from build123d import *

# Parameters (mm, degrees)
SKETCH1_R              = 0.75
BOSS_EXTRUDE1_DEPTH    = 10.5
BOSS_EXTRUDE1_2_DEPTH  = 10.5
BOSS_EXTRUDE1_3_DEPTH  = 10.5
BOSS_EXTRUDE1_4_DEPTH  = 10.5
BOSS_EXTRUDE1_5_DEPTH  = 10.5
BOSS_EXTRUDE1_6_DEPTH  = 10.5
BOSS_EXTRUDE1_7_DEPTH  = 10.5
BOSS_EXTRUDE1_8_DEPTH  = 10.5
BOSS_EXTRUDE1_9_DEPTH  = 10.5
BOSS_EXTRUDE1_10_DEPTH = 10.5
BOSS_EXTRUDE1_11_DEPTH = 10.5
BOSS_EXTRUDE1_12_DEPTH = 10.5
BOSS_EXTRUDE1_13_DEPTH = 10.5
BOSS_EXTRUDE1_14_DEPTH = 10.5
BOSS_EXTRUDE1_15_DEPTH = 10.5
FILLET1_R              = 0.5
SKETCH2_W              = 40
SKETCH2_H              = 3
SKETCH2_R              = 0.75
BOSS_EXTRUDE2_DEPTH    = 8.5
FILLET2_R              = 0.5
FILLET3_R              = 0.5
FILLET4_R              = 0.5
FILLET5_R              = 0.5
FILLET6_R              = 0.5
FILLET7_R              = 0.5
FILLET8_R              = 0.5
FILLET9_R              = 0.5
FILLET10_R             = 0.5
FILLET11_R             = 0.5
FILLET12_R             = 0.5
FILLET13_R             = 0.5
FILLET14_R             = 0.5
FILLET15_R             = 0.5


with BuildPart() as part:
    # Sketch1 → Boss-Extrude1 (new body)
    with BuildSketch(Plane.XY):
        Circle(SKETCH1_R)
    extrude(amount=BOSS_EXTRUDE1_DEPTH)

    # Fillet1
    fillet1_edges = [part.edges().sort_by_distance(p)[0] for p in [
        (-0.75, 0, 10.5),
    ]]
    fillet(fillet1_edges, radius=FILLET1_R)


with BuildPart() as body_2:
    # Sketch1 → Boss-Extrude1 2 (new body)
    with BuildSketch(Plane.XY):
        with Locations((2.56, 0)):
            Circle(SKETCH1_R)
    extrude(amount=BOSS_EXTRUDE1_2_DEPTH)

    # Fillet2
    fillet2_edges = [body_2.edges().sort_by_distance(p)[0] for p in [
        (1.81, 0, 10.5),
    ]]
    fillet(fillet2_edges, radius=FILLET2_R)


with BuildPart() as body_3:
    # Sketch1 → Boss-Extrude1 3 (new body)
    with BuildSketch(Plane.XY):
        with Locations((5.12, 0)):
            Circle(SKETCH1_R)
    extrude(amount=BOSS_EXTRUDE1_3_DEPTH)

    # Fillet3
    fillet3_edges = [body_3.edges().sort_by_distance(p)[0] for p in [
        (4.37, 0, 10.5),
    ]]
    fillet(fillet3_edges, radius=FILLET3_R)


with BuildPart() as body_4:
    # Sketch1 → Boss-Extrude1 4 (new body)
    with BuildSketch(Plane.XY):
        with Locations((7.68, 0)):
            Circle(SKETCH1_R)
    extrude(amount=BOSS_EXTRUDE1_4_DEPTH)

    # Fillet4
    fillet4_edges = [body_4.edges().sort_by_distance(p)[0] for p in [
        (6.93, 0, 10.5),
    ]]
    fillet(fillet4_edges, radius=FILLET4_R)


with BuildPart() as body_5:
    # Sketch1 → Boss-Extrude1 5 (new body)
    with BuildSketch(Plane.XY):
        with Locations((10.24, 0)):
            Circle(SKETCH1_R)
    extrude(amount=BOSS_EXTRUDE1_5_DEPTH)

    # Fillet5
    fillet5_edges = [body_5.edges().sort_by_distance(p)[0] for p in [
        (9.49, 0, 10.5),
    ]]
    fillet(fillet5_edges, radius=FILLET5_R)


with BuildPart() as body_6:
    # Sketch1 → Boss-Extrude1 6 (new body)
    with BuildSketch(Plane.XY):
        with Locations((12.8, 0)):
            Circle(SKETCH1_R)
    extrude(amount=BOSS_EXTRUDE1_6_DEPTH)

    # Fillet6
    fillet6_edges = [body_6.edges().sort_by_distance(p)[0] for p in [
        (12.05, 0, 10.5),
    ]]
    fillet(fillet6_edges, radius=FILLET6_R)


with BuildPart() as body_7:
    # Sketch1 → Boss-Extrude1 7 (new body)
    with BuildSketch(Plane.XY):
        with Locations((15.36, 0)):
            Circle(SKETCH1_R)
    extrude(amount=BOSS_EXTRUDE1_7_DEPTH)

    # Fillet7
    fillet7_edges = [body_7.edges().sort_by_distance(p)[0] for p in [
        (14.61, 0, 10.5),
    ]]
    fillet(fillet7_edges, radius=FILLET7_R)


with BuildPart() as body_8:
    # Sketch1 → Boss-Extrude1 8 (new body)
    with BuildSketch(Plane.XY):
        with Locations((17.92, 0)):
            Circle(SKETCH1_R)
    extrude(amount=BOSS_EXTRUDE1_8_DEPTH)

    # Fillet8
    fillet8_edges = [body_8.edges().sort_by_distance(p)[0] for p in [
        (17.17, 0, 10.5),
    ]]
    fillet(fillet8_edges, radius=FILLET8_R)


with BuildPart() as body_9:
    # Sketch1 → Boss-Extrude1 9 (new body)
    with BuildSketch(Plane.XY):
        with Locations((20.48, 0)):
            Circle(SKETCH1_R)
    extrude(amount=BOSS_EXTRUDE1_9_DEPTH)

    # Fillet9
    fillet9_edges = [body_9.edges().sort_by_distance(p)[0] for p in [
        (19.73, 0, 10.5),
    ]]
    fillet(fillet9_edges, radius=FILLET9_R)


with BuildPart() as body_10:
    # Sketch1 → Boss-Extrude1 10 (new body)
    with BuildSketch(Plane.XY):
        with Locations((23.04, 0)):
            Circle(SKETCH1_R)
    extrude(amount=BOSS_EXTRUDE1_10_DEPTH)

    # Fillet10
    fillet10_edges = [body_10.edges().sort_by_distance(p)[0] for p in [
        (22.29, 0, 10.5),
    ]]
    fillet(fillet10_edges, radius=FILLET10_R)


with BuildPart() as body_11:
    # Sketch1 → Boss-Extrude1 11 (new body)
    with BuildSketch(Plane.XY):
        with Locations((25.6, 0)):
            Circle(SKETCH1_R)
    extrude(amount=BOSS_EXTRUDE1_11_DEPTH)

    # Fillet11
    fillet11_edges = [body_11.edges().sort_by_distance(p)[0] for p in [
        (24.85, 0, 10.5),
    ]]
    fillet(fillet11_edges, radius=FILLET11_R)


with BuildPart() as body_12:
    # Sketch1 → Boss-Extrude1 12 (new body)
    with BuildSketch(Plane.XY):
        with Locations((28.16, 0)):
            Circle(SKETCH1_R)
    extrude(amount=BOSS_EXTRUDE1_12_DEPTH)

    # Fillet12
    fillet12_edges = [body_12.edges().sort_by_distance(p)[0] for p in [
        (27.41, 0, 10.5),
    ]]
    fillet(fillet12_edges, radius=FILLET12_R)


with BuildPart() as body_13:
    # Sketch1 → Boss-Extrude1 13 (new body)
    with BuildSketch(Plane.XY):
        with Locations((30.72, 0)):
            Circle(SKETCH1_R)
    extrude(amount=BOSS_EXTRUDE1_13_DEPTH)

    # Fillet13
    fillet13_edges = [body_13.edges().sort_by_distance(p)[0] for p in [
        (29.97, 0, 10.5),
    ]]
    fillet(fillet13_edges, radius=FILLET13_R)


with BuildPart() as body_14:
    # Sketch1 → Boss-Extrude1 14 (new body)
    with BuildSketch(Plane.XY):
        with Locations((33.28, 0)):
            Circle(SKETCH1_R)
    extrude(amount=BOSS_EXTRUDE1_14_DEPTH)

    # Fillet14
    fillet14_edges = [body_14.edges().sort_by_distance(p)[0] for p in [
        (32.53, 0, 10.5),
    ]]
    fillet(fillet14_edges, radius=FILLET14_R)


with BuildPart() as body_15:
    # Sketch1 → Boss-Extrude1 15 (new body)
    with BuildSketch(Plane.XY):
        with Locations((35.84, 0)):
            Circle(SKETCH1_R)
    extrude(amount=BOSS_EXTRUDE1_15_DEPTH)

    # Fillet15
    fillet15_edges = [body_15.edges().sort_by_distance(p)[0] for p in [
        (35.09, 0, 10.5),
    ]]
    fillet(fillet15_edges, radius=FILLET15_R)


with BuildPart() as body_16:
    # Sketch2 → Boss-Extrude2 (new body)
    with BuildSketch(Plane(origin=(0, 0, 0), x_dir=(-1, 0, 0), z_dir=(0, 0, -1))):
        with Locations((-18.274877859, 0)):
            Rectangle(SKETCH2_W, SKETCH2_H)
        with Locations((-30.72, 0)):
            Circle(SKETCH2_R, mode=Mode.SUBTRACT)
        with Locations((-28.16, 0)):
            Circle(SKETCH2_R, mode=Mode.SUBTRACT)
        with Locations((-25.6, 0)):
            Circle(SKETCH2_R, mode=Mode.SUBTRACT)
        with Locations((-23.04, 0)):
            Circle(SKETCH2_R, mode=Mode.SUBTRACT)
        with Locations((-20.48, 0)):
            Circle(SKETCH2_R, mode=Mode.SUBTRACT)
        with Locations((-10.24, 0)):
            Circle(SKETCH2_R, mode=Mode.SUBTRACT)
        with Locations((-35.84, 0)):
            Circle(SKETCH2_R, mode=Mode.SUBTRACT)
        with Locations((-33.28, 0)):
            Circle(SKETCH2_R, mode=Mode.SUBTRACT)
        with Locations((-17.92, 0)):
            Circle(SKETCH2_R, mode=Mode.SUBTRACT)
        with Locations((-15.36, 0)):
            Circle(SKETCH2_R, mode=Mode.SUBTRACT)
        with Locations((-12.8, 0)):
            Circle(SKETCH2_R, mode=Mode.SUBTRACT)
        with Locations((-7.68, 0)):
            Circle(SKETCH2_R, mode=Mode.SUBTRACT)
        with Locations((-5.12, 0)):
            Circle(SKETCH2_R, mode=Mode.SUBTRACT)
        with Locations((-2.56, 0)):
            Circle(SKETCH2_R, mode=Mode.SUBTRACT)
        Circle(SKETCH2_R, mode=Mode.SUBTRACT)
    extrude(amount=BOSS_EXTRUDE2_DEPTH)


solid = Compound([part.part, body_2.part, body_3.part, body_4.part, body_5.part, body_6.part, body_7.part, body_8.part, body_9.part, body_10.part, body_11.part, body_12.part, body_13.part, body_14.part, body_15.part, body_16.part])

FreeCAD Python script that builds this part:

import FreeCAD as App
import Part
import Sketcher
from FreeCAD import Vector


def edges_at(feature, points):
    """Names of the edges that pass closest to the given points."""
    edges = feature.Shape.Edges
    near = lambda p: min(range(len(edges)), key=lambda i: edges[i].distToShape(Part.Vertex(*p))[0])
    return sorted({f"Edge{near(p) + 1}" for p in points})


def add_polygon(sketch, points):
    """Adds a closed chain of lines whose ends are joined by coincident constraints."""
    first, n = sketch.GeometryCount, len(points)
    for a, b in zip(points, points[1:] + points[:1]):
        sketch.addGeometry(Part.LineSegment(App.Vector(*a, 0), App.Vector(*b, 0)), False)
    for i in range(n):
        sketch.addConstraint(Sketcher.Constraint("Coincident", first + i, 2, first + (i + 1) % n, 1))

doc = App.newDocument("Part")
body = doc.addObject("PartDesign::Body", "Body")

# Sketch on XY plane
sketch1 = body.newObject("Sketcher::SketchObject", "Sketch")
sketch1.AttachmentSupport = (doc.getObject("XY_Plane"), [""])
sketch1.MapMode = "FlatFace"
sketch1.addGeometry(Part.Circle(Vector(0, 0, 0), Vector(0, 0, 1), 0.8), False)
sketch1.addConstraint([
    Sketcher.Constraint("Coincident", 0, 3, -1, 1),
    Sketcher.Constraint("Diameter", 0, 1.5),
])
pad1 = body.newObject("PartDesign::Pad", "Pad")
pad1.Profile = sketch1
pad1.Length = 10.5
doc.recompute()

fillet = body.newObject("PartDesign::Fillet", "Fillet")
fillet.Base = (pad1, edges_at(pad1, [(-0.75, 0, 10.5)]))
fillet.Radius = 0.5
body2 = doc.addObject("PartDesign::Body", "Body001")

# Sketch on XY plane
sketch2 = body2.newObject("Sketcher::SketchObject", "Sketch001")
sketch2.AttachmentSupport = (doc.getObject("XY_Plane001"), [""])
sketch2.MapMode = "FlatFace"
sketch2.addGeometry(Part.Circle(Vector(2.6, 0, 0), Vector(0, 0, 1), 0.8), False)
sketch2.addConstraint([
    Sketcher.Constraint("PointOnObject", 0, 3, -1),
    Sketcher.Constraint("Diameter", 0, 1.5),
    Sketcher.Constraint("DistanceX", -1, 1, 0, 3, 2.56),
])
pad2 = body2.newObject("PartDesign::Pad", "Pad001")
pad2.Profile = sketch2
pad2.Length = 10.5
doc.recompute()

fillet2 = body2.newObject("PartDesign::Fillet", "Fillet001")
fillet2.Base = (pad2, edges_at(pad2, [(1.81, 0, 10.5)]))
fillet2.Radius = 0.5
body3 = doc.addObject("PartDesign::Body", "Body002")

# Sketch on XY plane
sketch3 = body3.newObject("Sketcher::SketchObject", "Sketch002")
sketch3.AttachmentSupport = (doc.getObject("XY_Plane002"), [""])
sketch3.MapMode = "FlatFace"
sketch3.addGeometry(Part.Circle(Vector(5.1, 0, 0), Vector(0, 0, 1), 0.8), False)
sketch3.addConstraint([
    Sketcher.Constraint("PointOnObject", 0, 3, -1),
    Sketcher.Constraint("Diameter", 0, 1.5),
    Sketcher.Constraint("DistanceX", -1, 1, 0, 3, 5.12),
])
pad3 = body3.newObject("PartDesign::Pad", "Pad002")
pad3.Profile = sketch3
pad3.Length = 10.5
doc.recompute()

fillet3 = body3.newObject("PartDesign::Fillet", "Fillet002")
fillet3.Base = (pad3, edges_at(pad3, [(4.37, 0, 10.5)]))
fillet3.Radius = 0.5
body4 = doc.addObject("PartDesign::Body", "Body003")

# Sketch on XY plane
sketch4 = body4.newObject("Sketcher::SketchObject", "Sketch003")
sketch4.AttachmentSupport = (doc.getObject("XY_Plane003"), [""])
sketch4.MapMode = "FlatFace"
sketch4.addGeometry(Part.Circle(Vector(7.7, 0, 0), Vector(0, 0, 1), 0.8), False)
sketch4.addConstraint([
    Sketcher.Constraint("PointOnObject", 0, 3, -1),
    Sketcher.Constraint("Diameter", 0, 1.5),
    Sketcher.Constraint("DistanceX", -1, 1, 0, 3, 7.68),
])
pad4 = body4.newObject("PartDesign::Pad", "Pad003")
pad4.Profile = sketch4
pad4.Length = 10.5
doc.recompute()

fillet4 = body4.newObject("PartDesign::Fillet", "Fillet003")
fillet4.Base = (pad4, edges_at(pad4, [(6.93, 0, 10.5)]))
fillet4.Radius = 0.5
body5 = doc.addObject("PartDesign::Body", "Body004")

# Sketch on XY plane
sketch5 = body5.newObject("Sketcher::SketchObject", "Sketch004")
sketch5.AttachmentSupport = (doc.getObject("XY_Plane004"), [""])
sketch5.MapMode = "FlatFace"
sketch5.addGeometry(Part.Circle(Vector(10.2, 0, 0), Vector(0, 0, 1), 0.8), False)
sketch5.addConstraint([
    Sketcher.Constraint("PointOnObject", 0, 3, -1),
    Sketcher.Constraint("Diameter", 0, 1.5),
    Sketcher.Constraint("DistanceX", -1, 1, 0, 3, 10.24),
])
pad5 = body5.newObject("PartDesign::Pad", "Pad004")
pad5.Profile = sketch5
pad5.Length = 10.5
doc.recompute()

fillet5 = body5.newObject("PartDesign::Fillet", "Fillet004")
fillet5.Base = (pad5, edges_at(pad5, [(9.49, 0, 10.5)]))
fillet5.Radius = 0.5
body6 = doc.addObject("PartDesign::Body", "Body005")

# Sketch on XY plane
sketch6 = body6.newObject("Sketcher::SketchObject", "Sketch005")
sketch6.AttachmentSupport = (doc.getObject("XY_Plane005"), [""])
sketch6.MapMode = "FlatFace"
sketch6.addGeometry(Part.Circle(Vector(12.8, 0, 0), Vector(0, 0, 1), 0.8), False)
sketch6.addConstraint([
    Sketcher.Constraint("PointOnObject", 0, 3, -1),
    Sketcher.Constraint("Diameter", 0, 1.5),
    Sketcher.Constraint("DistanceX", -1, 1, 0, 3, 12.8),
])
pad6 = body6.newObject("PartDesign::Pad", "Pad005")
pad6.Profile = sketch6
pad6.Length = 10.5
doc.recompute()

fillet6 = body6.newObject("PartDesign::Fillet", "Fillet005")
fillet6.Base = (pad6, edges_at(pad6, [(12.05, 0, 10.5)]))
fillet6.Radius = 0.5
body7 = doc.addObject("PartDesign::Body", "Body006")

# Sketch on XY plane
sketch7 = body7.newObject("Sketcher::SketchObject", "Sketch006")
sketch7.AttachmentSupport = (doc.getObject("XY_Plane006"), [""])
sketch7.MapMode = "FlatFace"
sketch7.addGeometry(Part.Circle(Vector(15.4, 0, 0), Vector(0, 0, 1), 0.8), False)
sketch7.addConstraint([
    Sketcher.Constraint("PointOnObject", 0, 3, -1),
    Sketcher.Constraint("Diameter", 0, 1.5),
    Sketcher.Constraint("DistanceX", -1, 1, 0, 3, 15.36),
])
pad7 = body7.newObject("PartDesign::Pad", "Pad006")
pad7.Profile = sketch7
pad7.Length = 10.5
doc.recompute()

fillet7 = body7.newObject("PartDesign::Fillet", "Fillet006")
fillet7.Base = (pad7, edges_at(pad7, [(14.61, 0, 10.5)]))
fillet7.Radius = 0.5
body8 = doc.addObject("PartDesign::Body", "Body007")

# Sketch on XY plane
sketch8 = body8.newObject("Sketcher::SketchObject", "Sketch007")
sketch8.AttachmentSupport = (doc.getObject("XY_Plane007"), [""])
sketch8.MapMode = "FlatFace"
sketch8.addGeometry(Part.Circle(Vector(17.9, 0, 0), Vector(0, 0, 1), 0.8), False)
sketch8.addConstraint([
    Sketcher.Constraint("PointOnObject", 0, 3, -1),
    Sketcher.Constraint("Diameter", 0, 1.5),
    Sketcher.Constraint("DistanceX", -1, 1, 0, 3, 17.92),
])
pad8 = body8.newObject("PartDesign::Pad", "Pad007")
pad8.Profile = sketch8
pad8.Length = 10.5
doc.recompute()

fillet8 = body8.newObject("PartDesign::Fillet", "Fillet007")
fillet8.Base = (pad8, edges_at(pad8, [(17.17, 0, 10.5)]))
fillet8.Radius = 0.5
body9 = doc.addObject("PartDesign::Body", "Body008")

# Sketch on XY plane
sketch9 = body9.newObject("Sketcher::SketchObject", "Sketch008")
sketch9.AttachmentSupport = (doc.getObject("XY_Plane008"), [""])
sketch9.MapMode = "FlatFace"
sketch9.addGeometry(Part.Circle(Vector(20.5, 0, 0), Vector(0, 0, 1), 0.8), False)
sketch9.addConstraint([
    Sketcher.Constraint("PointOnObject", 0, 3, -1),
    Sketcher.Constraint("Diameter", 0, 1.5),
    Sketcher.Constraint("DistanceX", -1, 1, 0, 3, 20.48),
])
pad9 = body9.newObject("PartDesign::Pad", "Pad008")
pad9.Profile = sketch9
pad9.Length = 10.5
doc.recompute()

fillet9 = body9.newObject("PartDesign::Fillet", "Fillet008")
fillet9.Base = (pad9, edges_at(pad9, [(19.73, 0, 10.5)]))
fillet9.Radius = 0.5
body10 = doc.addObject("PartDesign::Body", "Body009")

# Sketch on XY plane
sketch10 = body10.newObject("Sketcher::SketchObject", "Sketch009")
sketch10.AttachmentSupport = (doc.getObject("XY_Plane009"), [""])
sketch10.MapMode = "FlatFace"
sketch10.addGeometry(Part.Circle(Vector(23, 0, 0), Vector(0, 0, 1), 0.8), False)
sketch10.addConstraint([
    Sketcher.Constraint("PointOnObject", 0, 3, -1),
    Sketcher.Constraint("Diameter", 0, 1.5),
    Sketcher.Constraint("DistanceX", -1, 1, 0, 3, 23.04),
])
pad10 = body10.newObject("PartDesign::Pad", "Pad009")
pad10.Profile = sketch10
pad10.Length = 10.5
doc.recompute()

fillet10 = body10.newObject("PartDesign::Fillet", "Fillet009")
fillet10.Base = (pad10, edges_at(pad10, [(22.29, 0, 10.5)]))
fillet10.Radius = 0.5
body11 = doc.addObject("PartDesign::Body", "Body010")

# Sketch on XY plane
sketch11 = body11.newObject("Sketcher::SketchObject", "Sketch010")
sketch11.AttachmentSupport = (doc.getObject("XY_Plane010"), [""])
sketch11.MapMode = "FlatFace"
sketch11.addGeometry(Part.Circle(Vector(25.6, 0, 0), Vector(0, 0, 1), 0.8), False)
sketch11.addConstraint([
    Sketcher.Constraint("PointOnObject", 0, 3, -1),
    Sketcher.Constraint("Diameter", 0, 1.5),
    Sketcher.Constraint("DistanceX", -1, 1, 0, 3, 25.6),
])
pad11 = body11.newObject("PartDesign::Pad", "Pad010")
pad11.Profile = sketch11
pad11.Length = 10.5
doc.recompute()

fillet11 = body11.newObject("PartDesign::Fillet", "Fillet010")
fillet11.Base = (pad11, edges_at(pad11, [(24.85, 0, 10.5)]))
fillet11.Radius = 0.5
body12 = doc.addObject("PartDesign::Body", "Body011")

# Sketch on XY plane
sketch12 = body12.newObject("Sketcher::SketchObject", "Sketch011")
sketch12.AttachmentSupport = (doc.getObject("XY_Plane011"), [""])
sketch12.MapMode = "FlatFace"
sketch12.addGeometry(Part.Circle(Vector(28.2, 0, 0), Vector(0, 0, 1), 0.8), False)
sketch12.addConstraint([
    Sketcher.Constraint("PointOnObject", 0, 3, -1),
    Sketcher.Constraint("Diameter", 0, 1.5),
    Sketcher.Constraint("DistanceX", -1, 1, 0, 3, 28.16),
])
pad12 = body12.newObject("PartDesign::Pad", "Pad011")
pad12.Profile = sketch12
pad12.Length = 10.5
doc.recompute()

fillet12 = body12.newObject("PartDesign::Fillet", "Fillet011")
fillet12.Base = (pad12, edges_at(pad12, [(27.41, 0, 10.5)]))
fillet12.Radius = 0.5
body13 = doc.addObject("PartDesign::Body", "Body012")

# Sketch on XY plane
sketch13 = body13.newObject("Sketcher::SketchObject", "Sketch012")
sketch13.AttachmentSupport = (doc.getObject("XY_Plane012"), [""])
sketch13.MapMode = "FlatFace"
sketch13.addGeometry(Part.Circle(Vector(30.7, 0, 0), Vector(0, 0, 1), 0.8), False)
sketch13.addConstraint([
    Sketcher.Constraint("PointOnObject", 0, 3, -1),
    Sketcher.Constraint("Diameter", 0, 1.5),
    Sketcher.Constraint("DistanceX", -1, 1, 0, 3, 30.72),
])
pad13 = body13.newObject("PartDesign::Pad", "Pad012")
pad13.Profile = sketch13
pad13.Length = 10.5
doc.recompute()

fillet13 = body13.newObject("PartDesign::Fillet", "Fillet012")
fillet13.Base = (pad13, edges_at(pad13, [(29.97, 0, 10.5)]))
fillet13.Radius = 0.5
body14 = doc.addObject("PartDesign::Body", "Body013")

# Sketch on XY plane
sketch14 = body14.newObject("Sketcher::SketchObject", "Sketch013")
sketch14.AttachmentSupport = (doc.getObject("XY_Plane013"), [""])
sketch14.MapMode = "FlatFace"
sketch14.addGeometry(Part.Circle(Vector(33.3, 0, 0), Vector(0, 0, 1), 0.8), False)
sketch14.addConstraint([
    Sketcher.Constraint("PointOnObject", 0, 3, -1),
    Sketcher.Constraint("Diameter", 0, 1.5),
    Sketcher.Constraint("DistanceX", -1, 1, 0, 3, 33.28),
])
pad14 = body14.newObject("PartDesign::Pad", "Pad013")
pad14.Profile = sketch14
pad14.Length = 10.5
doc.recompute()

fillet14 = body14.newObject("PartDesign::Fillet", "Fillet013")
fillet14.Base = (pad14, edges_at(pad14, [(32.53, 0, 10.5)]))
fillet14.Radius = 0.5
body15 = doc.addObject("PartDesign::Body", "Body014")

# Sketch on XY plane
sketch15 = body15.newObject("Sketcher::SketchObject", "Sketch014")
sketch15.AttachmentSupport = (doc.getObject("XY_Plane014"), [""])
sketch15.MapMode = "FlatFace"
sketch15.addGeometry(Part.Circle(Vector(35.8, 0, 0), Vector(0, 0, 1), 0.8), False)
sketch15.addConstraint([
    Sketcher.Constraint("PointOnObject", 0, 3, -1),
    Sketcher.Constraint("Diameter", 0, 1.5),
    Sketcher.Constraint("DistanceX", -1, 1, 0, 3, 35.84),
])
pad15 = body15.newObject("PartDesign::Pad", "Pad014")
pad15.Profile = sketch15
pad15.Length = 10.5
doc.recompute()

fillet15 = body15.newObject("PartDesign::Fillet", "Fillet014")
fillet15.Base = (pad15, edges_at(pad15, [(35.09, 0, 10.5)]))
fillet15.Radius = 0.5
body16 = doc.addObject("PartDesign::Body", "Body015")

# Sketch on XY plane
sketch16 = body16.newObject("Sketcher::SketchObject", "Sketch015")
sketch16.AttachmentSupport = (doc.getObject("XY_Plane015"), [""])
sketch16.MapMode = "FlatFace"
add_polygon(sketch16, [(38.3, 1.5), (38.3, -1.5), (-1.7, -1.5), (-1.7, 1.5)])  # lines 0-3
sketch16.addGeometry(Part.Circle(Vector(35.8, 0, 0), Vector(0, 0, 1), 0.8), False)  # 4
sketch16.addGeometry(Part.Circle(Vector(33.3, 0, 0), Vector(0, 0, 1), 0.8), False)  # 5
sketch16.addGeometry(Part.Circle(Vector(30.7, 0, 0), Vector(0, 0, 1), 0.8), False)  # 6
sketch16.addGeometry(Part.Circle(Vector(28.2, 0, 0), Vector(0, 0, 1), 0.8), False)  # 7
sketch16.addGeometry(Part.Circle(Vector(25.6, 0, 0), Vector(0, 0, 1), 0.8), False)  # 8
sketch16.addGeometry(Part.Circle(Vector(23, 0, 0), Vector(0, 0, 1), 0.8), False)  # 9
sketch16.addGeometry(Part.Circle(Vector(20.5, 0, 0), Vector(0, 0, 1), 0.8), False)  # 10
sketch16.addGeometry(Part.Circle(Vector(17.9, 0, 0), Vector(0, 0, 1), 0.8), False)  # 11
sketch16.addGeometry(Part.Circle(Vector(15.4, 0, 0), Vector(0, 0, 1), 0.8), False)  # 12
sketch16.addGeometry(Part.Circle(Vector(12.8, 0, 0), Vector(0, 0, 1), 0.8), False)  # 13
sketch16.addGeometry(Part.Circle(Vector(10.2, 0, 0), Vector(0, 0, 1), 0.8), False)  # 14
sketch16.addGeometry(Part.Circle(Vector(7.7, 0, 0), Vector(0, 0, 1), 0.8), False)  # 15
sketch16.addGeometry(Part.Circle(Vector(5.1, 0, 0), Vector(0, 0, 1), 0.8), False)  # 16
sketch16.addGeometry(Part.Circle(Vector(2.6, 0, 0), Vector(0, 0, 1), 0.8), False)  # 17
sketch16.addGeometry(Part.Circle(Vector(0, 0, 0), Vector(0, 0, 1), 0.8), False)  # 18
sketch16.addConstraint([
    Sketcher.Constraint("Vertical", 0),
    Sketcher.Constraint("Horizontal", 1),
    Sketcher.Constraint("Vertical", 2),
    Sketcher.Constraint("Horizontal", 3),
    Sketcher.Constraint("Coincident", 18, 3, -1, 1),
    Sketcher.Constraint("Equal", 4, 5),
    Sketcher.Constraint("Equal", 5, 6),
    Sketcher.Constraint("Equal", 6, 7),
    Sketcher.Constraint("Equal", 7, 8),
    Sketcher.Constraint("Equal", 8, 9),
    Sketcher.Constraint("Equal", 9, 10),
    Sketcher.Constraint("Equal", 10, 11),
    Sketcher.Constraint("Equal", 11, 12),
    Sketcher.Constraint("Equal", 12, 13),
    Sketcher.Constraint("Equal", 13, 14),
    Sketcher.Constraint("Equal", 14, 15),
    Sketcher.Constraint("Equal", 15, 16),
    Sketcher.Constraint("Equal", 16, 17),
    Sketcher.Constraint("Equal", 17, 18),
    Sketcher.Constraint("PointOnObject", 4, 3, -1),
    Sketcher.Constraint("PointOnObject", 5, 3, -1),
    Sketcher.Constraint("PointOnObject", 6, 3, -1),
    Sketcher.Constraint("PointOnObject", 7, 3, -1),
    Sketcher.Constraint("PointOnObject", 8, 3, -1),
    Sketcher.Constraint("PointOnObject", 9, 3, -1),
    Sketcher.Constraint("PointOnObject", 10, 3, -1),
    Sketcher.Constraint("PointOnObject", 11, 3, -1),
    Sketcher.Constraint("PointOnObject", 12, 3, -1),
    Sketcher.Constraint("PointOnObject", 13, 3, -1),
    Sketcher.Constraint("PointOnObject", 14, 3, -1),
    Sketcher.Constraint("PointOnObject", 15, 3, -1),
    Sketcher.Constraint("PointOnObject", 16, 3, -1),
    Sketcher.Constraint("PointOnObject", 17, 3, -1),
    Sketcher.Constraint("Diameter", 4, 1.5),
    Sketcher.Constraint("DistanceX", 1, 2, 1, 1, 40.0),
    Sketcher.Constraint("DistanceY", 0, 2, 0, 1, 3.0),
    Sketcher.Constraint("DistanceX", -1, 1, 8, 3, 25.6),
    Sketcher.Constraint("DistanceX", -1, 1, 13, 3, 12.8),
    Sketcher.Constraint("DistanceY", 0, 2, -1, 1, 1.5),
    Sketcher.Constraint("DistanceX", 9, 3, 4, 3, 12.8),
    Sketcher.Constraint("DistanceX", 10, 3, 5, 3, 12.8),
    Sketcher.Constraint("DistanceX", 11, 3, 6, 3, 12.8),
    Sketcher.Constraint("DistanceX", 12, 3, 7, 3, 12.8),
    Sketcher.Constraint("DistanceX", 14, 3, 9, 3, 12.8),
    Sketcher.Constraint("DistanceX", 15, 3, 10, 3, 12.8),
    Sketcher.Constraint("DistanceX", 16, 3, 11, 3, 12.8),
    Sketcher.Constraint("DistanceX", 17, 3, 12, 3, 12.8),
    Sketcher.Constraint("DistanceX", -1, 1, 4, 3, 35.84),
    Sketcher.Constraint("DistanceX", -1, 1, 5, 3, 33.28),
    Sketcher.Constraint("DistanceX", -1, 1, 6, 3, 30.72),
    Sketcher.Constraint("DistanceX", -1, 1, 7, 3, 28.16),
    Sketcher.Constraint("DistanceX", -1, 1, 0, 2, 38.274878),
])
pad16 = body16.newObject("PartDesign::Pad", "Pad015")
pad16.Profile = sketch16
pad16.Length = 8.5
pad16.Reversed = True

doc.recompute()
